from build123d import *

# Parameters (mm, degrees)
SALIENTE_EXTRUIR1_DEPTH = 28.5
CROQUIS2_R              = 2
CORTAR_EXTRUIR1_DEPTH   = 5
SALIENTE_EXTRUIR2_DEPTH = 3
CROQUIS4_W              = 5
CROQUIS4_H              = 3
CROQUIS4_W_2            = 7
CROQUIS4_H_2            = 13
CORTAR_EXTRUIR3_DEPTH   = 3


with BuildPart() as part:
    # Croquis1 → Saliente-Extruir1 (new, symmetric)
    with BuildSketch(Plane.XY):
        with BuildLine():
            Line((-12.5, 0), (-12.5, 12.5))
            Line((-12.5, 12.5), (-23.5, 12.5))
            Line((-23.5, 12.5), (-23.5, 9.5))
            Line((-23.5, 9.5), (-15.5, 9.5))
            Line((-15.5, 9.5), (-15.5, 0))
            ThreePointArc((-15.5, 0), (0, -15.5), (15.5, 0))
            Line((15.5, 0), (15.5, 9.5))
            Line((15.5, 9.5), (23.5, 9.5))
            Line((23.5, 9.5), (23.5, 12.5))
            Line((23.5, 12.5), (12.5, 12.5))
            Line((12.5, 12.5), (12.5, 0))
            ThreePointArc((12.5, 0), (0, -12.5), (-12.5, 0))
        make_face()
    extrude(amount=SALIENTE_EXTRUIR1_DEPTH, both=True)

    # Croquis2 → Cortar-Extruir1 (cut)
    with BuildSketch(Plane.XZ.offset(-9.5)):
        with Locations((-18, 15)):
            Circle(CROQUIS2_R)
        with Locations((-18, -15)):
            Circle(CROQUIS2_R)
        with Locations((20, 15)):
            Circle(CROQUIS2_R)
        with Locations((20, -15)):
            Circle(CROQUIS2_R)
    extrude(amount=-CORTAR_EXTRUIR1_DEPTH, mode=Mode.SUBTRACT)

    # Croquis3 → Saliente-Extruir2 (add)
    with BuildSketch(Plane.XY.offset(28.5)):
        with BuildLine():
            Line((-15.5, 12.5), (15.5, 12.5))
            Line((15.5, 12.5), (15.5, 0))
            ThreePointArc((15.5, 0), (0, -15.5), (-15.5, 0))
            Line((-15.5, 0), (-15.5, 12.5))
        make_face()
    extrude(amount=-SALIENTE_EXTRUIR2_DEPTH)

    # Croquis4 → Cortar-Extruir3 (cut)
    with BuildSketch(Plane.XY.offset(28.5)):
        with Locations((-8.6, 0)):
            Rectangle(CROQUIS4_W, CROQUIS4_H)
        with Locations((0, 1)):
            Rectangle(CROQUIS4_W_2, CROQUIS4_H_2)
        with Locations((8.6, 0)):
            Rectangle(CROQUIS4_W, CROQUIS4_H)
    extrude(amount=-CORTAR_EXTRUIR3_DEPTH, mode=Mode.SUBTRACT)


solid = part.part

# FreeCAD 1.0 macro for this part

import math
import FreeCAD as App
import Part
import Sketcher

V = App.Vector


def add_polygon(sketch, points):
    """Adds a closed chain of lines whose ends are joined by coincident constraints."""
    first, n = sketch.GeometryCount, len(points)
    for a, b in zip(points, points[1:] + points[:1]):
        sketch.addGeometry(Part.LineSegment(App.Vector(*a, 0), App.Vector(*b, 0)), False)
    for i in range(n):
        sketch.addConstraint(Sketcher.Constraint("Coincident", first + i, 2, first + (i + 1) % n, 1))

doc = App.newDocument("Part")
body = doc.addObject("PartDesign::Body", "Body")

# Sketch on XY plane
sketch1 = body.newObject("Sketcher::SketchObject", "Sketch")
sketch1.AttachmentSupport = (doc.getObject("XY_Plane"), [""])
sketch1.MapMode = "FlatFace"
sketch1.addGeometry(Part.LineSegment(V(-12.5, 0, 0), V(-12.5, 12.5, 0)), False)
sketch1.addGeometry(Part.LineSegment(V(-12.5, 12.5, 0), V(-23.5, 12.5, 0)), False)
sketch1.addGeometry(Part.LineSegment(V(-23.5, 12.5, 0), V(-23.5, 9.5, 0)), False)
sketch1.addGeometry(Part.LineSegment(V(-23.5, 9.5, 0), V(-15.5, 9.5, 0)), False)
sketch1.addGeometry(Part.LineSegment(V(-15.5, 9.5, 0), V(-15.5, 0, 0)), False)
sketch1.addGeometry(Part.ArcOfCircle(Part.Circle(V(0, 0, 0), V(0, 0, 1), 15.5), math.radians(180), math.radians(360)), False)
sketch1.addGeometry(Part.LineSegment(V(15.5, 0, 0), V(15.5, 9.5, 0)), False)
sketch1.addGeometry(Part.LineSegment(V(15.5, 9.5, 0), V(23.5, 9.5, 0)), False)
sketch1.addGeometry(Part.LineSegment(V(23.5, 9.5, 0), V(23.5, 12.5, 0)), False)
sketch1.addGeometry(Part.LineSegment(V(23.5, 12.5, 0), V(12.5, 12.5, 0)), False)
sketch1.addGeometry(Part.LineSegment(V(12.5, 12.5, 0), V(12.5, 0, 0)), False)
sketch1.addGeometry(Part.ArcOfCircle(Part.Circle(V(0, 0, 0), V(0, 0, 1), 12.5), math.radians(180), math.radians(360)), False)
sketch1.addConstraint(Sketcher.Constraint("Coincident", 0, 2, 1, 1))
sketch1.addConstraint(Sketcher.Constraint("Coincident", 1, 2, 2, 1))
sketch1.addConstraint(Sketcher.Constraint("Coincident", 2, 2, 3, 1))
sketch1.addConstraint(Sketcher.Constraint("Coincident", 3, 2, 4, 1))
sketch1.addConstraint(Sketcher.Constraint("Tangent", 4, 2, 5, 1))
sketch1.addConstraint(Sketcher.Constraint("Tangent", 5, 2, 6, 1))
sketch1.addConstraint(Sketcher.Constraint("Coincident", 6, 2, 7, 1))
sketch1.addConstraint(Sketcher.Constraint("Coincident", 7, 2, 8, 1))
sketch1.addConstraint(Sketcher.Constraint("Coincident", 8, 2, 9, 1))
sketch1.addConstraint(Sketcher.Constraint("Coincident", 9, 2, 10, 1))
sketch1.addConstraint(Sketcher.Constraint("Tangent", 10, 2, 11, 2))
sketch1.addConstraint(Sketcher.Constraint("Tangent", 11, 1, 0, 1))
sketch1.addConstraint(Sketcher.Constraint("Vertical", 0))
sketch1.addConstraint(Sketcher.Constraint("Horizontal", 1))
sketch1.addConstraint(Sketcher.Constraint("Vertical", 2))
sketch1.addConstraint(Sketcher.Constraint("Horizontal", 3))
sketch1.addConstraint(Sketcher.Constraint("Vertical", 4))
sketch1.addConstraint(Sketcher.Constraint("Vertical", 6))
sketch1.addConstraint(Sketcher.Constraint("Horizontal", 7))
sketch1.addConstraint(Sketcher.Constraint("Vertical", 8))
sketch1.addConstraint(Sketcher.Constraint("Horizontal", 9))
sketch1.addConstraint(Sketcher.Constraint("Vertical", 10))
sketch1.addConstraint(Sketcher.Constraint("Coincident", 5, 3, -1, 1))
sketch1.addConstraint(Sketcher.Constraint("Coincident", 11, 3, -1, 1))
sketch1.addConstraint(Sketcher.Constraint("Symmetric", 2, 2, 7, 2, -2))
sketch1.addConstraint(Sketcher.Constraint("Horizontal", 1, 2, 8, 2))
sketch1.addConstraint(Sketcher.Constraint("Radius", 5, 15.5))
sketch1.addConstraint(Sketcher.Constraint("Radius", 11, 12.5))
sketch1.addConstraint(Sketcher.Constraint("DistanceX", 1, 2, 1, 1, 11.0))
sketch1.addConstraint(Sketcher.Constraint("DistanceY", 2, 2, 2, 1, 3.0))
sketch1.addConstraint(Sketcher.Constraint("DistanceY", 0, 1, 0, 2, 12.5))
pad1 = body.newObject("PartDesign::Pad", "Pad")
pad1.Profile = sketch1
pad1.Length = 57
pad1.Midplane = True

# Sketch on XZ plane
sketch2 = body.newObject("Sketcher::SketchObject", "Sketch001")
sketch2.AttachmentSupport = (doc.getObject("XZ_Plane"), [""])
sketch2.MapMode = "FlatFace"
sketch2.AttachmentOffset = App.Placement(V(0, 0, -9.5), App.Rotation())
sketch2.addGeometry(Part.Circle(V(-18, 15, 0), V(0, 0, 1), 2), False)
sketch2.addGeometry(Part.Circle(V(-18, -15, 0), V(0, 0, 1), 2), False)
sketch2.addGeometry(Part.Circle(V(20, 15, 0), V(0, 0, 1), 2), False)
sketch2.addGeometry(Part.Circle(V(20, -15, 0), V(0, 0, 1), 2), False)
sketch2.addConstraint(Sketcher.Constraint("Equal", 0, 1))
sketch2.addConstraint(Sketcher.Constraint("Equal", 1, 2))
sketch2.addConstraint(Sketcher.Constraint("Equal", 2, 3))
sketch2.addConstraint(Sketcher.Constraint("Symmetric", 0, 3, 1, 3, -1))
sketch2.addConstraint(Sketcher.Constraint("Symmetric", 2, 3, 3, 3, -1))
sketch2.addConstraint(Sketcher.Constraint("Horizontal", 0, 3, 2, 3))
sketch2.addConstraint(Sketcher.Constraint("Diameter", 0, 4.0))
sketch2.addConstraint(Sketcher.Constraint("DistanceX", 0, 3, -1, 1, 18.0))
sketch2.addConstraint(Sketcher.Constraint("DistanceY", -1, 1, 0, 3, 15.0))
sketch2.addConstraint(Sketcher.Constraint("DistanceX", -1, 1, 2, 3, 20.0))
pocket1 = body.newObject("PartDesign::Pocket", "Pocket")
pocket1.Profile = sketch2
pocket1.Length = 5

# Sketch on XY plane
sketch3 = body.newObject("Sketcher::SketchObject", "Sketch002")
sketch3.AttachmentSupport = (doc.getObject("XY_Plane"), [""])
sketch3.MapMode = "FlatFace"
sketch3.AttachmentOffset = App.Placement(V(0, 0, 28.5), App.Rotation())
sketch3.addGeometry(Part.LineSegment(V(16, 12, 0), V(-16, 12, 0)), False)
sketch3.addGeometry(Part.LineSegment(V(-16, 12, 0), V(-16, 0, 0)), False)
sketch3.addGeometry(Part.ArcOfCircle(Part.Circle(V(0, 0, 0), V(0, 0, 1), 16), math.radians(180), math.radians(360)), False)
sketch3.addGeometry(Part.LineSegment(V(16, 0, 0), V(16, 12, 0)), False)
sketch3.addConstraint(Sketcher.Constraint("Coincident", 0, 2, 1, 1))
sketch3.addConstraint(Sketcher.Constraint("Tangent", 1, 2, 2, 1))
sketch3.addConstraint(Sketcher.Constraint("Tangent", 2, 2, 3, 1))
sketch3.addConstraint(Sketcher.Constraint("Coincident", 3, 2, 0, 1))
sketch3.addConstraint(Sketcher.Constraint("Horizontal", 0))
sketch3.addConstraint(Sketcher.Constraint("Vertical", 1))
sketch3.addConstraint(Sketcher.Constraint("Vertical", 3))
sketch3.addConstraint(Sketcher.Constraint("Coincident", 2, 3, -1, 1))
sketch3.addConstraint(Sketcher.Constraint("Radius", 2, 15.5))
sketch3.addConstraint(Sketcher.Constraint("DistanceY", 1, 2, 1, 1, 12.5))
pad2 = body.newObject("PartDesign::Pad", "Pad001")
pad2.Profile = sketch3
pad2.Length = 3
pad2.Reversed = True

# Sketch on XY plane
sketch4 = body.newObject("Sketcher::SketchObject", "Sketch003")
sketch4.AttachmentSupport = (doc.getObject("XY_Plane"), [""])
sketch4.MapMode = "FlatFace"
sketch4.AttachmentOffset = App.Placement(V(0, 0, 28.5), App.Rotation())
add_polygon(sketch4, [(-11.1, 1.5), (-11.1, -1.5), (-6.1, -1.5), (-6.1, 1.5)])  # lines 0-3
add_polygon(sketch4, [(-3.5, 7.5), (-3.5, -5.5), (3.5, -5.5), (3.5, 7.5)])  # lines 4-7
add_polygon(sketch4, [(6.1, 1.5), (6.1, -1.5), (11.1, -1.5), (11.1, 1.5)])  # lines 8-11
sketch4.addConstraint(Sketcher.Constraint("Vertical", 0))
sketch4.addConstraint(Sketcher.Constraint("Horizontal", 1))
sketch4.addConstraint(Sketcher.Constraint("Vertical", 2))
sketch4.addConstraint(Sketcher.Constraint("Horizontal", 3))
sketch4.addConstraint(Sketcher.Constraint("Vertical", 4))
sketch4.addConstraint(Sketcher.Constraint("Horizontal", 5))
sketch4.addConstraint(Sketcher.Constraint("Vertical", 6))
sketch4.addConstraint(Sketcher.Constraint("Horizontal", 7))
sketch4.addConstraint(Sketcher.Constraint("Vertical", 8))
sketch4.addConstraint(Sketcher.Constraint("Horizontal", 9))
sketch4.addConstraint(Sketcher.Constraint("Vertical", 10))
sketch4.addConstraint(Sketcher.Constraint("Horizontal", 11))
sketch4.addConstraint(Sketcher.Constraint("Symmetric", 2, 2, 8, 2, -1, 1))
sketch4.addConstraint(Sketcher.Constraint("Symmetric", 0, 2, 10, 2, -1, 1))
sketch4.addConstraint(Sketcher.Constraint("Horizontal", 1, 2, 8, 2))
sketch4.addConstraint(Sketcher.Constraint("DistanceX", 1, 1, 1, 2, 5.0))
sketch4.addConstraint(Sketcher.Constraint("DistanceX", 5, 1, 5, 2, 7.0))
sketch4.addConstraint(Sketcher.Constraint("DistanceY", 0, 2, 0, 1, 3.0))
sketch4.addConstraint(Sketcher.Constraint("DistanceY", 4, 2, 4, 1, 13.0))
sketch4.addConstraint(Sketcher.Constraint("DistanceY", 4, 2, 1, 2, 4.0))
sketch4.addConstraint(Sketcher.Constraint("DistanceX", 0, 2, -1, 1, 11.1))
sketch4.addConstraint(Sketcher.Constraint("DistanceX", 4, 2, -1, 1, 3.5))
pocket2 = body.newObject("PartDesign::Pocket", "Pocket001")
pocket2.Profile = sketch4
pocket2.Length = 3

doc.recompute()
